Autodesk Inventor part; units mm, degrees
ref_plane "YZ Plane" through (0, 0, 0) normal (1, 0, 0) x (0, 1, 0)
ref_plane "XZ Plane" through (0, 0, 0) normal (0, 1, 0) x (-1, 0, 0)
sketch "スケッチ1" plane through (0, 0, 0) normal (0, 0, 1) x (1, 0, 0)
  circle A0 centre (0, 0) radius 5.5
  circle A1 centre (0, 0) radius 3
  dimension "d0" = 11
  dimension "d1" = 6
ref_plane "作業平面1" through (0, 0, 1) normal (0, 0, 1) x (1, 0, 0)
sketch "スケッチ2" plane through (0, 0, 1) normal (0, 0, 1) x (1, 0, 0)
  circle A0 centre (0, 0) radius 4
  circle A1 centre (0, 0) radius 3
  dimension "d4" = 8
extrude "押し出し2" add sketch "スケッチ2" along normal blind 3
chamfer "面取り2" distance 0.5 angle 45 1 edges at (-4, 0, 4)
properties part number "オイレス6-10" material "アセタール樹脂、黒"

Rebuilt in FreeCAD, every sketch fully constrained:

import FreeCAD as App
import Part
import Sketcher
Q = App.Units.Quantity


def edges_at(feature, points):
    """Names of the edges that pass closest to the given points."""
    edges = feature.Shape.Edges
    near = lambda p: min(range(len(edges)), key=lambda i: edges[i].distToShape(Part.Vertex(*p))[0])
    return sorted({f"Edge{near(p) + 1}" for p in points})

doc = App.newDocument("Part")
body = doc.addObject("PartDesign::Body", "Body")

# Sketch on XY plane
sketch1 = body.newObject("Sketcher::SketchObject", "Sketch")
sketch1.AttachmentSupport = (doc.getObject("XY_Plane"), [""])
sketch1.MapMode = "FlatFace"
sketch1.AttachmentOffset = App.Placement(App.Vector(0, 0, 1), App.Rotation())
sketch1.addGeometry([
    Part.Circle(App.Vector(0, 0, 0), App.Vector(0, 0, 1), 4),
    Part.Circle(App.Vector(0, 0, 0), App.Vector(0, 0, 1), 3),
], False)
sketch1.addConstraint([
    Sketcher.Constraint("Coincident", 0, 3, -1, 1),
    Sketcher.Constraint("Coincident", 1, 3, -1, 1),
    Sketcher.Constraint("Diameter", 0, Q("8 mm")),
    Sketcher.Constraint("Diameter", 1, Q("6 mm")),
])
pad1 = body.newObject("PartDesign::Pad", "Pad")
pad1.Profile = sketch1
pad1.Length = 3
doc.recompute()

chamfer = body.newObject("PartDesign::Chamfer", "Chamfer")
chamfer.Base = (pad1, edges_at(pad1, [(-4, 0, 4)]))
chamfer.Size = 0.5

doc.recompute()
